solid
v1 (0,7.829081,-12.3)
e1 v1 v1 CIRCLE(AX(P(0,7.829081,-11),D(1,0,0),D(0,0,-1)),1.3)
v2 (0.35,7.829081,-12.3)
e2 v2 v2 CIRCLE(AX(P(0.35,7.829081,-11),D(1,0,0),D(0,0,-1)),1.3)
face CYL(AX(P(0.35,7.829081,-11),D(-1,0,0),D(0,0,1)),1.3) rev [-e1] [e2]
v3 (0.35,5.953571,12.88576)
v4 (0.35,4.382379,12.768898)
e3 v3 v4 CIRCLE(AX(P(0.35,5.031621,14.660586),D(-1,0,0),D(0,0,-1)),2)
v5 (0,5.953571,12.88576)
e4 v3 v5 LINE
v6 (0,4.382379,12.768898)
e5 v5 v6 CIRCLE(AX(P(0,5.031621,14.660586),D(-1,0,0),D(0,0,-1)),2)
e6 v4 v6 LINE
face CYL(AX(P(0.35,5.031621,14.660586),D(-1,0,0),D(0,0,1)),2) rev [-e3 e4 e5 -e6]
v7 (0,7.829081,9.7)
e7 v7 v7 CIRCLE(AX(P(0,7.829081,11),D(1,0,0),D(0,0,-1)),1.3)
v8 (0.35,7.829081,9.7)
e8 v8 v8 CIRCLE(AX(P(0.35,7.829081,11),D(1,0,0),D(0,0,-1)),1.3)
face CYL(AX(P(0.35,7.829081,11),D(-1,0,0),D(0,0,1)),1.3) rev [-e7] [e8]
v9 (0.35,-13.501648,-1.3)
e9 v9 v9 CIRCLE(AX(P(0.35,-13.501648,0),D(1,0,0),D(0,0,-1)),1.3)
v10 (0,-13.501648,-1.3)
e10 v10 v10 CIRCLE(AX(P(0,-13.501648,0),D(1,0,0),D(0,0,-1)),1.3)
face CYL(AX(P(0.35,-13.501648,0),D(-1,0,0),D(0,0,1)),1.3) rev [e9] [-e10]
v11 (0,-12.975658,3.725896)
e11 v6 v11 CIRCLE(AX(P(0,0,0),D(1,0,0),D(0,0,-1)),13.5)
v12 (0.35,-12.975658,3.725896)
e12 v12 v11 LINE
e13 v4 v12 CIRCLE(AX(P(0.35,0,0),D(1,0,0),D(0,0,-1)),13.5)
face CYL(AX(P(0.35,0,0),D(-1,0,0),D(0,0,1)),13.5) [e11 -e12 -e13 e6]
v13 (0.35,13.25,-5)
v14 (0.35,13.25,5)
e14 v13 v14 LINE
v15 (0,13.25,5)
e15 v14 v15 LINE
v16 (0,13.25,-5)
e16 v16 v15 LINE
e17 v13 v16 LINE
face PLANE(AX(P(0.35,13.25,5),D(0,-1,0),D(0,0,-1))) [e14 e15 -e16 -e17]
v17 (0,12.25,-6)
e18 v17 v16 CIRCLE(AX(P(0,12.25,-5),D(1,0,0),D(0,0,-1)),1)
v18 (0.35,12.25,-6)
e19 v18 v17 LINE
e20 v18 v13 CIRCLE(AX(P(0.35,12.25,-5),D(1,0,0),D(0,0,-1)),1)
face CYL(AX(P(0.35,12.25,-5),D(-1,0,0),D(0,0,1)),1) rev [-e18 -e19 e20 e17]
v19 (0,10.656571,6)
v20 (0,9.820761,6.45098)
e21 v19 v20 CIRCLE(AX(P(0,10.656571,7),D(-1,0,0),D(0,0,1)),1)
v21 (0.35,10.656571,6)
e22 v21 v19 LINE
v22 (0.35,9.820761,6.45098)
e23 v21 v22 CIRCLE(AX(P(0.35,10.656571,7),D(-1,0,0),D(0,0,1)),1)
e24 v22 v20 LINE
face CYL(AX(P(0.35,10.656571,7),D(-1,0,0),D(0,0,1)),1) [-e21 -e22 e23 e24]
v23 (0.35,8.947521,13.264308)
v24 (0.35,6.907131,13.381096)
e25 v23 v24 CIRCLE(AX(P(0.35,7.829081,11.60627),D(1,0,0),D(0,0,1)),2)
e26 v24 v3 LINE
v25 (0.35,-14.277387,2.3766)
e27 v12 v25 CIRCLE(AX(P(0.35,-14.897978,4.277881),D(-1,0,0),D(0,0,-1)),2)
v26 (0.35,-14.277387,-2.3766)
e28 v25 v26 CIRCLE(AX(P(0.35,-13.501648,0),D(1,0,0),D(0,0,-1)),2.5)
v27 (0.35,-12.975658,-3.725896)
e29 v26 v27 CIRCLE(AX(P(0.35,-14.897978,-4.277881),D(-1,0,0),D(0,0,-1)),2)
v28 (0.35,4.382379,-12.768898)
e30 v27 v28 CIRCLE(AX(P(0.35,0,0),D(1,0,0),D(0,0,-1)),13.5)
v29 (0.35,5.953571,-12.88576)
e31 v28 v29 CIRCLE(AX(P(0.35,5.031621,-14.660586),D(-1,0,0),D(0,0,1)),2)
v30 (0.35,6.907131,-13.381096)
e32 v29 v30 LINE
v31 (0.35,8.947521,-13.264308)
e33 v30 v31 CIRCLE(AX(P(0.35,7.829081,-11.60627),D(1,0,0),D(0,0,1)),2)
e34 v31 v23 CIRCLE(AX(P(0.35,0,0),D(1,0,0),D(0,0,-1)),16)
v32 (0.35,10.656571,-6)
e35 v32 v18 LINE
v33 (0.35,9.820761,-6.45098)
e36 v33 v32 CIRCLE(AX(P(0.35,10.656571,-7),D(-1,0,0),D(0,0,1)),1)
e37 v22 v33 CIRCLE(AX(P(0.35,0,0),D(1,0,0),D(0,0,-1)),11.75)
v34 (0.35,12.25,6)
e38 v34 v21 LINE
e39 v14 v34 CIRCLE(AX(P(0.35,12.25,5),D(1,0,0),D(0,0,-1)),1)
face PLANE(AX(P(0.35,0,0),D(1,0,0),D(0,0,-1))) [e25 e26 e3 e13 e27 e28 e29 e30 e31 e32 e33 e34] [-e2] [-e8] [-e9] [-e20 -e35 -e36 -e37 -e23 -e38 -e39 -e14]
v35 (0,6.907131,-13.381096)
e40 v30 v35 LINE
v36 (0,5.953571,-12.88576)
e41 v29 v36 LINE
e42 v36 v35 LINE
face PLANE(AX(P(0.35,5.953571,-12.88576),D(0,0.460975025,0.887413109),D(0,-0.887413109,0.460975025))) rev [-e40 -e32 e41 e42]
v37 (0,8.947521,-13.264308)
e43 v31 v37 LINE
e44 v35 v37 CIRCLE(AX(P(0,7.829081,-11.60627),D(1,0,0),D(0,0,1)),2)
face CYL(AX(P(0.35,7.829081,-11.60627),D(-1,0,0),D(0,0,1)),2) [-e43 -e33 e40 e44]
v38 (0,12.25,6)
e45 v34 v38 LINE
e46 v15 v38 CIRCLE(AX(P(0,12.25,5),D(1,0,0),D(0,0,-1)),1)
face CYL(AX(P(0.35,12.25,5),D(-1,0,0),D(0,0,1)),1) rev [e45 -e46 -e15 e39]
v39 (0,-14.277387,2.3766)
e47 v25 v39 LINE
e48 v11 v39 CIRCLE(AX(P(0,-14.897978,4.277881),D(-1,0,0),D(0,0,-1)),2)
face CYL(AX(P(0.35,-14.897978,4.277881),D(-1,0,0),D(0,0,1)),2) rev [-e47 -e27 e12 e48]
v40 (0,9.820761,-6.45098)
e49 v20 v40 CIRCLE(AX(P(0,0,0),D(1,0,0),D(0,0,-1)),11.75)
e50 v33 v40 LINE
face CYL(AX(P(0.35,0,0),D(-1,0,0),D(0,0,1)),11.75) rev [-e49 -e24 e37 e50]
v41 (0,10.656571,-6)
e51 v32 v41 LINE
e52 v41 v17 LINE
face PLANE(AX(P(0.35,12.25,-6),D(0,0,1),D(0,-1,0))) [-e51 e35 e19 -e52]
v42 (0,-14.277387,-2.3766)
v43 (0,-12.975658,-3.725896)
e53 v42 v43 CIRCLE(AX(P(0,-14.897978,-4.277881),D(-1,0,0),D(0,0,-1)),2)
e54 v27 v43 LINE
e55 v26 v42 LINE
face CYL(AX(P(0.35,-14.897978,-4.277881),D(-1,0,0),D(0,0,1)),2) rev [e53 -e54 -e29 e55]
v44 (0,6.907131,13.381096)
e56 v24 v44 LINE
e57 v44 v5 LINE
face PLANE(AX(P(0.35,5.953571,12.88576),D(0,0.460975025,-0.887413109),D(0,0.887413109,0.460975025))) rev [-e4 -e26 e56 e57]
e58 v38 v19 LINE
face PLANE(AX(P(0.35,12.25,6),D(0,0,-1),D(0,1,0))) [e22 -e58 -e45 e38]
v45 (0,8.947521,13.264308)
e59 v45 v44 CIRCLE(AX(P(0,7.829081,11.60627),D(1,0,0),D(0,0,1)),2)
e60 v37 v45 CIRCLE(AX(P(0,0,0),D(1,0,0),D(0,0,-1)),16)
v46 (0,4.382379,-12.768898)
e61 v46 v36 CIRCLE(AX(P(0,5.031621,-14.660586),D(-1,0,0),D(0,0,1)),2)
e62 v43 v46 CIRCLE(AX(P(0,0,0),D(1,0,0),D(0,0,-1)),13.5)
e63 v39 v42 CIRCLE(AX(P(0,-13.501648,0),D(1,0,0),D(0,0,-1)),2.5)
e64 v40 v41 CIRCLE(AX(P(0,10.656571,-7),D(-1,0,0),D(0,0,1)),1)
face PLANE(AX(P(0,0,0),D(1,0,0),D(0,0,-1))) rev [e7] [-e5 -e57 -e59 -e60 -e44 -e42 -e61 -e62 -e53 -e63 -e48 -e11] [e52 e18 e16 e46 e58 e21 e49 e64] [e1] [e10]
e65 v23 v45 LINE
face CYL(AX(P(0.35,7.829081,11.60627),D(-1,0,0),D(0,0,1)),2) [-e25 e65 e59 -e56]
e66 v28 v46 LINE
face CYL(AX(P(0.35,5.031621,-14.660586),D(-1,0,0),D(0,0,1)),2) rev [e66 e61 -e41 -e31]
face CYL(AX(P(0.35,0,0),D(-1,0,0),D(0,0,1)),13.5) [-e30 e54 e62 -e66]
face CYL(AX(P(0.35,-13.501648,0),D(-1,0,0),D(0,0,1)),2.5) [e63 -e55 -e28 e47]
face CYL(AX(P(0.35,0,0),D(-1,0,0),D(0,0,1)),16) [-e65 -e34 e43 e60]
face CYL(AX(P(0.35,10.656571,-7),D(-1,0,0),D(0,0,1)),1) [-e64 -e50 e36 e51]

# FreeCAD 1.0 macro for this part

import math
import FreeCAD as App
import Part
import Sketcher

V = App.Vector

doc = App.newDocument("Part")
params = doc.addObject("Spreadsheet::Sheet", "Params")
for row, (alias, value) in enumerate([
    ("sketch1_radius", "2 mm"),
    ("sketch1_radius2", "16 mm"),
    ("sketch1_radius3", "1 mm"),
    ("sketch1_diameter", "2.6 mm"),
    ("sketch1_radius4", "13.5 mm"),
    ("pad1_length", "0.35 mm"),
], start=1):
    params.set(f"A{row}", alias)
    params.set(f"B{row}", "=" + value)
    params.setAlias(f"B{row}", alias)

body = doc.addObject("PartDesign::Body", "Body")

# Sketch on YZ plane
sketch1 = doc.addObject("Sketcher::SketchObject", "Sketch")
body.addObject(sketch1)
sketch1.AttachmentSupport = (doc.YZ_Plane, [""])
sketch1.MapMode = "FlatFace"
sketch1.addGeometry(Part.LineSegment(V(6.907131, 13.381096, 0), V(5.953571, 12.88576, 0)), False)
sketch1.addGeometry(Part.ArcOfCircle(Part.Circle(V(5.031621, 14.660586, 0), V(0, 0, 1), 2), math.radians(-108.942596), math.radians(-62.549958)), False)
sketch1.addGeometry(Part.ArcOfCircle(Part.Circle(V(0, 0, 0), V(0, 0, 1), 13.5), math.radians(71.057404), math.radians(163.978842)), False)
sketch1.addGeometry(Part.ArcOfCircle(Part.Circle(V(-14.897978, 4.277881, 0), V(0, 0, 1), 2), math.radians(-71.922966), math.radians(-16.021158)), False)
sketch1.addGeometry(Part.ArcOfCircle(Part.Circle(V(-13.501648, 0, 0), V(0, 0, 1), 2.5), math.radians(108.077034), math.radians(251.922966)), False)
sketch1.addGeometry(Part.ArcOfCircle(Part.Circle(V(-14.897978, -4.277881, 0), V(0, 0, 1), 2), math.radians(16.021158), math.radians(71.922966)), False)
sketch1.addGeometry(Part.ArcOfCircle(Part.Circle(V(0, 0, 0), V(0, 0, 1), 13.5), math.radians(-163.978842), math.radians(-71.057404)), False)
sketch1.addGeometry(Part.ArcOfCircle(Part.Circle(V(5.031621, -14.660586, 0), V(0, 0, 1), 2), math.radians(62.549958), math.radians(108.942596)), False)
sketch1.addGeometry(Part.LineSegment(V(5.953571, -12.88576, 0), V(6.907131, -13.381096, 0)), False)
sketch1.addGeometry(Part.ArcOfCircle(Part.Circle(V(7.829081, -11.60627, 0), V(0, 0, 1), 2), math.radians(-117.450042), math.radians(-55.998124)), False)
sketch1.addGeometry(Part.ArcOfCircle(Part.Circle(V(0, 0, 0), V(0, 0, 1), 16), math.radians(-55.998124), math.radians(55.998124)), False)
sketch1.addGeometry(Part.ArcOfCircle(Part.Circle(V(7.829081, 11.60627, 0), V(0, 0, 1), 2), math.radians(55.998124), math.radians(117.450042)), False)
sketch1.addGeometry(Part.Circle(V(-13.501648, 0, 0), V(0, 0, 1), 1.3), False)
sketch1.addGeometry(Part.Circle(V(7.829081, -11, 0), V(0, 0, 1), 1.3), False)
sketch1.addGeometry(Part.LineSegment(V(13.25, 5, 0), V(13.25, -5, 0)), False)
sketch1.addGeometry(Part.ArcOfCircle(Part.Circle(V(12.25, -5, 0), V(0, 0, 1), 1), math.radians(-90), math.radians(0)), False)
sketch1.addGeometry(Part.LineSegment(V(12.25, -6, 0), V(10.656571, -6, 0)), False)
sketch1.addGeometry(Part.ArcOfCircle(Part.Circle(V(10.656571, -7, 0), V(0, 0, 1), 1), math.radians(90), math.radians(146.70022)), False)
sketch1.addGeometry(Part.ArcOfCircle(Part.Circle(V(0, 0, 0), V(0, 0, 1), 11.75), math.radians(33.29978), math.radians(326.70022)), False)
sketch1.addGeometry(Part.ArcOfCircle(Part.Circle(V(10.656571, 7, 0), V(0, 0, 1), 1), math.radians(-146.70022), math.radians(-90)), False)
sketch1.addGeometry(Part.LineSegment(V(10.656571, 6, 0), V(12.25, 6, 0)), False)
sketch1.addGeometry(Part.ArcOfCircle(Part.Circle(V(12.25, 5, 0), V(0, 0, 1), 1), math.radians(0), math.radians(90)), False)
sketch1.addGeometry(Part.Circle(V(7.829081, 11, 0), V(0, 0, 1), 1.3), False)
sketch1.addConstraint(Sketcher.Constraint("Tangent", 0, 2, 1, 2))
sketch1.addConstraint(Sketcher.Constraint("Tangent", 1, 1, 2, 1))
sketch1.addConstraint(Sketcher.Constraint("Tangent", 2, 2, 3, 2))
sketch1.addConstraint(Sketcher.Constraint("Tangent", 3, 1, 4, 1))
sketch1.addConstraint(Sketcher.Constraint("Tangent", 4, 2, 5, 2))
sketch1.addConstraint(Sketcher.Constraint("Tangent", 5, 1, 6, 1))
sketch1.addConstraint(Sketcher.Constraint("Tangent", 6, 2, 7, 2))
sketch1.addConstraint(Sketcher.Constraint("Tangent", 7, 1, 8, 1))
sketch1.addConstraint(Sketcher.Constraint("Tangent", 8, 2, 9, 1))
sketch1.addConstraint(Sketcher.Constraint("Tangent", 9, 2, 10, 1))
sketch1.addConstraint(Sketcher.Constraint("Tangent", 10, 2, 11, 1))
sketch1.addConstraint(Sketcher.Constraint("Tangent", 11, 2, 0, 1))
sketch1.addConstraint(Sketcher.Constraint("Tangent", 14, 2, 15, 2))
sketch1.addConstraint(Sketcher.Constraint("Tangent", 15, 1, 16, 1))
sketch1.addConstraint(Sketcher.Constraint("Tangent", 16, 2, 17, 1))
sketch1.addConstraint(Sketcher.Constraint("Tangent", 17, 2, 18, 2))
sketch1.addConstraint(Sketcher.Constraint("Tangent", 18, 1, 19, 1))
sketch1.addConstraint(Sketcher.Constraint("Tangent", 19, 2, 20, 1))
sketch1.addConstraint(Sketcher.Constraint("Tangent", 20, 2, 21, 2))
sketch1.addConstraint(Sketcher.Constraint("Tangent", 21, 1, 14, 1))
sketch1.addConstraint(Sketcher.Constraint("Vertical", 14))
sketch1.addConstraint(Sketcher.Constraint("Horizontal", 16))
sketch1.addConstraint(Sketcher.Constraint("Horizontal", 20))
sketch1.addConstraint(Sketcher.Constraint("Coincident", 2, 3, -1, 1))
sketch1.addConstraint(Sketcher.Constraint("Coincident", 6, 3, -1, 1))
sketch1.addConstraint(Sketcher.Constraint("Coincident", 10, 3, -1, 1))
sketch1.addConstraint(Sketcher.Constraint("Coincident", 18, 3, -1, 1))
sketch1.addConstraint(Sketcher.Constraint("Coincident", 12, 3, 4, 3))
sketch1.addConstraint(Sketcher.Constraint("Equal", 1, 3))
sketch1.addConstraint(Sketcher.Constraint("Equal", 3, 5))
sketch1.addConstraint(Sketcher.Constraint("Equal", 2, 6))
sketch1.addConstraint(Sketcher.Constraint("Equal", 5, 7))
sketch1.addConstraint(Sketcher.Constraint("Equal", 7, 9))
sketch1.addConstraint(Sketcher.Constraint("Equal", 9, 11))
sketch1.addConstraint(Sketcher.Constraint("Equal", 12, 13))
sketch1.addConstraint(Sketcher.Constraint("Equal", 15, 17))
sketch1.addConstraint(Sketcher.Constraint("Equal", 17, 19))
sketch1.addConstraint(Sketcher.Constraint("Equal", 19, 21))
sketch1.addConstraint(Sketcher.Constraint("Equal", 13, 22))
sketch1.addConstraint(Sketcher.Constraint("Symmetric", 13, 3, 22, 3, -1))
sketch1.addConstraint(Sketcher.Constraint("Symmetric", 0, 2, 7, 1, -1))
sketch1.addConstraint(Sketcher.Constraint("PointOnObject", 4, 3, -1))
sketch1.addConstraint(Sketcher.Constraint("Vertical", 11, 3, 13, 3))
sketch1.addConstraint(Sketcher.Constraint("Vertical", 17, 3, 19, 3))
sketch1.addConstraint(Sketcher.Constraint("Radius", 1, 2.0))
sketch1.addConstraint(Sketcher.Constraint("Radius", 10, 16.0))
sketch1.addConstraint(Sketcher.Constraint("Radius", 15, 1.0))
sketch1.addConstraint(Sketcher.Constraint("Diameter", 12, 2.6))
sketch1.addConstraint(Sketcher.Constraint("Radius", 2, 13.5))
sketch1.addConstraint(Sketcher.Constraint("Radius", 4, 2.5))
sketch1.addConstraint(Sketcher.Constraint("DistanceY", 14, 2, 14, 1, 10.0))
sketch1.addConstraint(Sketcher.Constraint("Radius", 18, 11.75))
sketch1.addConstraint(Sketcher.Constraint("DistanceY", 13, 3, -1, 1, 11.0))
sketch1.addConstraint(Sketcher.Constraint("DistanceX", -1, 1, 15, 3, 12.25))
sketch1.addConstraint(Sketcher.Constraint("DistanceX", 0, 2, 19, 3, 4.703))
sketch1.addConstraint(Sketcher.Constraint("DistanceY", -1, 1, 3, 1, 2.3766))
sketch1.addConstraint(Sketcher.Constraint("DistanceX", 3, 3, 1, 3, 19.929598))
sketch1.setExpression("Constraints[44]", "Params.sketch1_radius")
sketch1.setExpression("Constraints[45]", "Params.sketch1_radius2")
sketch1.setExpression("Constraints[46]", "Params.sketch1_radius3")
sketch1.setExpression("Constraints[47]", "Params.sketch1_diameter")
sketch1.setExpression("Constraints[48]", "Params.sketch1_radius4")
pad1 = doc.addObject("PartDesign::Pad", "Pad")
body.addObject(pad1)
pad1.Profile = sketch1
pad1.setExpression("Length", "Params.pad1_length")

doc.recompute()
